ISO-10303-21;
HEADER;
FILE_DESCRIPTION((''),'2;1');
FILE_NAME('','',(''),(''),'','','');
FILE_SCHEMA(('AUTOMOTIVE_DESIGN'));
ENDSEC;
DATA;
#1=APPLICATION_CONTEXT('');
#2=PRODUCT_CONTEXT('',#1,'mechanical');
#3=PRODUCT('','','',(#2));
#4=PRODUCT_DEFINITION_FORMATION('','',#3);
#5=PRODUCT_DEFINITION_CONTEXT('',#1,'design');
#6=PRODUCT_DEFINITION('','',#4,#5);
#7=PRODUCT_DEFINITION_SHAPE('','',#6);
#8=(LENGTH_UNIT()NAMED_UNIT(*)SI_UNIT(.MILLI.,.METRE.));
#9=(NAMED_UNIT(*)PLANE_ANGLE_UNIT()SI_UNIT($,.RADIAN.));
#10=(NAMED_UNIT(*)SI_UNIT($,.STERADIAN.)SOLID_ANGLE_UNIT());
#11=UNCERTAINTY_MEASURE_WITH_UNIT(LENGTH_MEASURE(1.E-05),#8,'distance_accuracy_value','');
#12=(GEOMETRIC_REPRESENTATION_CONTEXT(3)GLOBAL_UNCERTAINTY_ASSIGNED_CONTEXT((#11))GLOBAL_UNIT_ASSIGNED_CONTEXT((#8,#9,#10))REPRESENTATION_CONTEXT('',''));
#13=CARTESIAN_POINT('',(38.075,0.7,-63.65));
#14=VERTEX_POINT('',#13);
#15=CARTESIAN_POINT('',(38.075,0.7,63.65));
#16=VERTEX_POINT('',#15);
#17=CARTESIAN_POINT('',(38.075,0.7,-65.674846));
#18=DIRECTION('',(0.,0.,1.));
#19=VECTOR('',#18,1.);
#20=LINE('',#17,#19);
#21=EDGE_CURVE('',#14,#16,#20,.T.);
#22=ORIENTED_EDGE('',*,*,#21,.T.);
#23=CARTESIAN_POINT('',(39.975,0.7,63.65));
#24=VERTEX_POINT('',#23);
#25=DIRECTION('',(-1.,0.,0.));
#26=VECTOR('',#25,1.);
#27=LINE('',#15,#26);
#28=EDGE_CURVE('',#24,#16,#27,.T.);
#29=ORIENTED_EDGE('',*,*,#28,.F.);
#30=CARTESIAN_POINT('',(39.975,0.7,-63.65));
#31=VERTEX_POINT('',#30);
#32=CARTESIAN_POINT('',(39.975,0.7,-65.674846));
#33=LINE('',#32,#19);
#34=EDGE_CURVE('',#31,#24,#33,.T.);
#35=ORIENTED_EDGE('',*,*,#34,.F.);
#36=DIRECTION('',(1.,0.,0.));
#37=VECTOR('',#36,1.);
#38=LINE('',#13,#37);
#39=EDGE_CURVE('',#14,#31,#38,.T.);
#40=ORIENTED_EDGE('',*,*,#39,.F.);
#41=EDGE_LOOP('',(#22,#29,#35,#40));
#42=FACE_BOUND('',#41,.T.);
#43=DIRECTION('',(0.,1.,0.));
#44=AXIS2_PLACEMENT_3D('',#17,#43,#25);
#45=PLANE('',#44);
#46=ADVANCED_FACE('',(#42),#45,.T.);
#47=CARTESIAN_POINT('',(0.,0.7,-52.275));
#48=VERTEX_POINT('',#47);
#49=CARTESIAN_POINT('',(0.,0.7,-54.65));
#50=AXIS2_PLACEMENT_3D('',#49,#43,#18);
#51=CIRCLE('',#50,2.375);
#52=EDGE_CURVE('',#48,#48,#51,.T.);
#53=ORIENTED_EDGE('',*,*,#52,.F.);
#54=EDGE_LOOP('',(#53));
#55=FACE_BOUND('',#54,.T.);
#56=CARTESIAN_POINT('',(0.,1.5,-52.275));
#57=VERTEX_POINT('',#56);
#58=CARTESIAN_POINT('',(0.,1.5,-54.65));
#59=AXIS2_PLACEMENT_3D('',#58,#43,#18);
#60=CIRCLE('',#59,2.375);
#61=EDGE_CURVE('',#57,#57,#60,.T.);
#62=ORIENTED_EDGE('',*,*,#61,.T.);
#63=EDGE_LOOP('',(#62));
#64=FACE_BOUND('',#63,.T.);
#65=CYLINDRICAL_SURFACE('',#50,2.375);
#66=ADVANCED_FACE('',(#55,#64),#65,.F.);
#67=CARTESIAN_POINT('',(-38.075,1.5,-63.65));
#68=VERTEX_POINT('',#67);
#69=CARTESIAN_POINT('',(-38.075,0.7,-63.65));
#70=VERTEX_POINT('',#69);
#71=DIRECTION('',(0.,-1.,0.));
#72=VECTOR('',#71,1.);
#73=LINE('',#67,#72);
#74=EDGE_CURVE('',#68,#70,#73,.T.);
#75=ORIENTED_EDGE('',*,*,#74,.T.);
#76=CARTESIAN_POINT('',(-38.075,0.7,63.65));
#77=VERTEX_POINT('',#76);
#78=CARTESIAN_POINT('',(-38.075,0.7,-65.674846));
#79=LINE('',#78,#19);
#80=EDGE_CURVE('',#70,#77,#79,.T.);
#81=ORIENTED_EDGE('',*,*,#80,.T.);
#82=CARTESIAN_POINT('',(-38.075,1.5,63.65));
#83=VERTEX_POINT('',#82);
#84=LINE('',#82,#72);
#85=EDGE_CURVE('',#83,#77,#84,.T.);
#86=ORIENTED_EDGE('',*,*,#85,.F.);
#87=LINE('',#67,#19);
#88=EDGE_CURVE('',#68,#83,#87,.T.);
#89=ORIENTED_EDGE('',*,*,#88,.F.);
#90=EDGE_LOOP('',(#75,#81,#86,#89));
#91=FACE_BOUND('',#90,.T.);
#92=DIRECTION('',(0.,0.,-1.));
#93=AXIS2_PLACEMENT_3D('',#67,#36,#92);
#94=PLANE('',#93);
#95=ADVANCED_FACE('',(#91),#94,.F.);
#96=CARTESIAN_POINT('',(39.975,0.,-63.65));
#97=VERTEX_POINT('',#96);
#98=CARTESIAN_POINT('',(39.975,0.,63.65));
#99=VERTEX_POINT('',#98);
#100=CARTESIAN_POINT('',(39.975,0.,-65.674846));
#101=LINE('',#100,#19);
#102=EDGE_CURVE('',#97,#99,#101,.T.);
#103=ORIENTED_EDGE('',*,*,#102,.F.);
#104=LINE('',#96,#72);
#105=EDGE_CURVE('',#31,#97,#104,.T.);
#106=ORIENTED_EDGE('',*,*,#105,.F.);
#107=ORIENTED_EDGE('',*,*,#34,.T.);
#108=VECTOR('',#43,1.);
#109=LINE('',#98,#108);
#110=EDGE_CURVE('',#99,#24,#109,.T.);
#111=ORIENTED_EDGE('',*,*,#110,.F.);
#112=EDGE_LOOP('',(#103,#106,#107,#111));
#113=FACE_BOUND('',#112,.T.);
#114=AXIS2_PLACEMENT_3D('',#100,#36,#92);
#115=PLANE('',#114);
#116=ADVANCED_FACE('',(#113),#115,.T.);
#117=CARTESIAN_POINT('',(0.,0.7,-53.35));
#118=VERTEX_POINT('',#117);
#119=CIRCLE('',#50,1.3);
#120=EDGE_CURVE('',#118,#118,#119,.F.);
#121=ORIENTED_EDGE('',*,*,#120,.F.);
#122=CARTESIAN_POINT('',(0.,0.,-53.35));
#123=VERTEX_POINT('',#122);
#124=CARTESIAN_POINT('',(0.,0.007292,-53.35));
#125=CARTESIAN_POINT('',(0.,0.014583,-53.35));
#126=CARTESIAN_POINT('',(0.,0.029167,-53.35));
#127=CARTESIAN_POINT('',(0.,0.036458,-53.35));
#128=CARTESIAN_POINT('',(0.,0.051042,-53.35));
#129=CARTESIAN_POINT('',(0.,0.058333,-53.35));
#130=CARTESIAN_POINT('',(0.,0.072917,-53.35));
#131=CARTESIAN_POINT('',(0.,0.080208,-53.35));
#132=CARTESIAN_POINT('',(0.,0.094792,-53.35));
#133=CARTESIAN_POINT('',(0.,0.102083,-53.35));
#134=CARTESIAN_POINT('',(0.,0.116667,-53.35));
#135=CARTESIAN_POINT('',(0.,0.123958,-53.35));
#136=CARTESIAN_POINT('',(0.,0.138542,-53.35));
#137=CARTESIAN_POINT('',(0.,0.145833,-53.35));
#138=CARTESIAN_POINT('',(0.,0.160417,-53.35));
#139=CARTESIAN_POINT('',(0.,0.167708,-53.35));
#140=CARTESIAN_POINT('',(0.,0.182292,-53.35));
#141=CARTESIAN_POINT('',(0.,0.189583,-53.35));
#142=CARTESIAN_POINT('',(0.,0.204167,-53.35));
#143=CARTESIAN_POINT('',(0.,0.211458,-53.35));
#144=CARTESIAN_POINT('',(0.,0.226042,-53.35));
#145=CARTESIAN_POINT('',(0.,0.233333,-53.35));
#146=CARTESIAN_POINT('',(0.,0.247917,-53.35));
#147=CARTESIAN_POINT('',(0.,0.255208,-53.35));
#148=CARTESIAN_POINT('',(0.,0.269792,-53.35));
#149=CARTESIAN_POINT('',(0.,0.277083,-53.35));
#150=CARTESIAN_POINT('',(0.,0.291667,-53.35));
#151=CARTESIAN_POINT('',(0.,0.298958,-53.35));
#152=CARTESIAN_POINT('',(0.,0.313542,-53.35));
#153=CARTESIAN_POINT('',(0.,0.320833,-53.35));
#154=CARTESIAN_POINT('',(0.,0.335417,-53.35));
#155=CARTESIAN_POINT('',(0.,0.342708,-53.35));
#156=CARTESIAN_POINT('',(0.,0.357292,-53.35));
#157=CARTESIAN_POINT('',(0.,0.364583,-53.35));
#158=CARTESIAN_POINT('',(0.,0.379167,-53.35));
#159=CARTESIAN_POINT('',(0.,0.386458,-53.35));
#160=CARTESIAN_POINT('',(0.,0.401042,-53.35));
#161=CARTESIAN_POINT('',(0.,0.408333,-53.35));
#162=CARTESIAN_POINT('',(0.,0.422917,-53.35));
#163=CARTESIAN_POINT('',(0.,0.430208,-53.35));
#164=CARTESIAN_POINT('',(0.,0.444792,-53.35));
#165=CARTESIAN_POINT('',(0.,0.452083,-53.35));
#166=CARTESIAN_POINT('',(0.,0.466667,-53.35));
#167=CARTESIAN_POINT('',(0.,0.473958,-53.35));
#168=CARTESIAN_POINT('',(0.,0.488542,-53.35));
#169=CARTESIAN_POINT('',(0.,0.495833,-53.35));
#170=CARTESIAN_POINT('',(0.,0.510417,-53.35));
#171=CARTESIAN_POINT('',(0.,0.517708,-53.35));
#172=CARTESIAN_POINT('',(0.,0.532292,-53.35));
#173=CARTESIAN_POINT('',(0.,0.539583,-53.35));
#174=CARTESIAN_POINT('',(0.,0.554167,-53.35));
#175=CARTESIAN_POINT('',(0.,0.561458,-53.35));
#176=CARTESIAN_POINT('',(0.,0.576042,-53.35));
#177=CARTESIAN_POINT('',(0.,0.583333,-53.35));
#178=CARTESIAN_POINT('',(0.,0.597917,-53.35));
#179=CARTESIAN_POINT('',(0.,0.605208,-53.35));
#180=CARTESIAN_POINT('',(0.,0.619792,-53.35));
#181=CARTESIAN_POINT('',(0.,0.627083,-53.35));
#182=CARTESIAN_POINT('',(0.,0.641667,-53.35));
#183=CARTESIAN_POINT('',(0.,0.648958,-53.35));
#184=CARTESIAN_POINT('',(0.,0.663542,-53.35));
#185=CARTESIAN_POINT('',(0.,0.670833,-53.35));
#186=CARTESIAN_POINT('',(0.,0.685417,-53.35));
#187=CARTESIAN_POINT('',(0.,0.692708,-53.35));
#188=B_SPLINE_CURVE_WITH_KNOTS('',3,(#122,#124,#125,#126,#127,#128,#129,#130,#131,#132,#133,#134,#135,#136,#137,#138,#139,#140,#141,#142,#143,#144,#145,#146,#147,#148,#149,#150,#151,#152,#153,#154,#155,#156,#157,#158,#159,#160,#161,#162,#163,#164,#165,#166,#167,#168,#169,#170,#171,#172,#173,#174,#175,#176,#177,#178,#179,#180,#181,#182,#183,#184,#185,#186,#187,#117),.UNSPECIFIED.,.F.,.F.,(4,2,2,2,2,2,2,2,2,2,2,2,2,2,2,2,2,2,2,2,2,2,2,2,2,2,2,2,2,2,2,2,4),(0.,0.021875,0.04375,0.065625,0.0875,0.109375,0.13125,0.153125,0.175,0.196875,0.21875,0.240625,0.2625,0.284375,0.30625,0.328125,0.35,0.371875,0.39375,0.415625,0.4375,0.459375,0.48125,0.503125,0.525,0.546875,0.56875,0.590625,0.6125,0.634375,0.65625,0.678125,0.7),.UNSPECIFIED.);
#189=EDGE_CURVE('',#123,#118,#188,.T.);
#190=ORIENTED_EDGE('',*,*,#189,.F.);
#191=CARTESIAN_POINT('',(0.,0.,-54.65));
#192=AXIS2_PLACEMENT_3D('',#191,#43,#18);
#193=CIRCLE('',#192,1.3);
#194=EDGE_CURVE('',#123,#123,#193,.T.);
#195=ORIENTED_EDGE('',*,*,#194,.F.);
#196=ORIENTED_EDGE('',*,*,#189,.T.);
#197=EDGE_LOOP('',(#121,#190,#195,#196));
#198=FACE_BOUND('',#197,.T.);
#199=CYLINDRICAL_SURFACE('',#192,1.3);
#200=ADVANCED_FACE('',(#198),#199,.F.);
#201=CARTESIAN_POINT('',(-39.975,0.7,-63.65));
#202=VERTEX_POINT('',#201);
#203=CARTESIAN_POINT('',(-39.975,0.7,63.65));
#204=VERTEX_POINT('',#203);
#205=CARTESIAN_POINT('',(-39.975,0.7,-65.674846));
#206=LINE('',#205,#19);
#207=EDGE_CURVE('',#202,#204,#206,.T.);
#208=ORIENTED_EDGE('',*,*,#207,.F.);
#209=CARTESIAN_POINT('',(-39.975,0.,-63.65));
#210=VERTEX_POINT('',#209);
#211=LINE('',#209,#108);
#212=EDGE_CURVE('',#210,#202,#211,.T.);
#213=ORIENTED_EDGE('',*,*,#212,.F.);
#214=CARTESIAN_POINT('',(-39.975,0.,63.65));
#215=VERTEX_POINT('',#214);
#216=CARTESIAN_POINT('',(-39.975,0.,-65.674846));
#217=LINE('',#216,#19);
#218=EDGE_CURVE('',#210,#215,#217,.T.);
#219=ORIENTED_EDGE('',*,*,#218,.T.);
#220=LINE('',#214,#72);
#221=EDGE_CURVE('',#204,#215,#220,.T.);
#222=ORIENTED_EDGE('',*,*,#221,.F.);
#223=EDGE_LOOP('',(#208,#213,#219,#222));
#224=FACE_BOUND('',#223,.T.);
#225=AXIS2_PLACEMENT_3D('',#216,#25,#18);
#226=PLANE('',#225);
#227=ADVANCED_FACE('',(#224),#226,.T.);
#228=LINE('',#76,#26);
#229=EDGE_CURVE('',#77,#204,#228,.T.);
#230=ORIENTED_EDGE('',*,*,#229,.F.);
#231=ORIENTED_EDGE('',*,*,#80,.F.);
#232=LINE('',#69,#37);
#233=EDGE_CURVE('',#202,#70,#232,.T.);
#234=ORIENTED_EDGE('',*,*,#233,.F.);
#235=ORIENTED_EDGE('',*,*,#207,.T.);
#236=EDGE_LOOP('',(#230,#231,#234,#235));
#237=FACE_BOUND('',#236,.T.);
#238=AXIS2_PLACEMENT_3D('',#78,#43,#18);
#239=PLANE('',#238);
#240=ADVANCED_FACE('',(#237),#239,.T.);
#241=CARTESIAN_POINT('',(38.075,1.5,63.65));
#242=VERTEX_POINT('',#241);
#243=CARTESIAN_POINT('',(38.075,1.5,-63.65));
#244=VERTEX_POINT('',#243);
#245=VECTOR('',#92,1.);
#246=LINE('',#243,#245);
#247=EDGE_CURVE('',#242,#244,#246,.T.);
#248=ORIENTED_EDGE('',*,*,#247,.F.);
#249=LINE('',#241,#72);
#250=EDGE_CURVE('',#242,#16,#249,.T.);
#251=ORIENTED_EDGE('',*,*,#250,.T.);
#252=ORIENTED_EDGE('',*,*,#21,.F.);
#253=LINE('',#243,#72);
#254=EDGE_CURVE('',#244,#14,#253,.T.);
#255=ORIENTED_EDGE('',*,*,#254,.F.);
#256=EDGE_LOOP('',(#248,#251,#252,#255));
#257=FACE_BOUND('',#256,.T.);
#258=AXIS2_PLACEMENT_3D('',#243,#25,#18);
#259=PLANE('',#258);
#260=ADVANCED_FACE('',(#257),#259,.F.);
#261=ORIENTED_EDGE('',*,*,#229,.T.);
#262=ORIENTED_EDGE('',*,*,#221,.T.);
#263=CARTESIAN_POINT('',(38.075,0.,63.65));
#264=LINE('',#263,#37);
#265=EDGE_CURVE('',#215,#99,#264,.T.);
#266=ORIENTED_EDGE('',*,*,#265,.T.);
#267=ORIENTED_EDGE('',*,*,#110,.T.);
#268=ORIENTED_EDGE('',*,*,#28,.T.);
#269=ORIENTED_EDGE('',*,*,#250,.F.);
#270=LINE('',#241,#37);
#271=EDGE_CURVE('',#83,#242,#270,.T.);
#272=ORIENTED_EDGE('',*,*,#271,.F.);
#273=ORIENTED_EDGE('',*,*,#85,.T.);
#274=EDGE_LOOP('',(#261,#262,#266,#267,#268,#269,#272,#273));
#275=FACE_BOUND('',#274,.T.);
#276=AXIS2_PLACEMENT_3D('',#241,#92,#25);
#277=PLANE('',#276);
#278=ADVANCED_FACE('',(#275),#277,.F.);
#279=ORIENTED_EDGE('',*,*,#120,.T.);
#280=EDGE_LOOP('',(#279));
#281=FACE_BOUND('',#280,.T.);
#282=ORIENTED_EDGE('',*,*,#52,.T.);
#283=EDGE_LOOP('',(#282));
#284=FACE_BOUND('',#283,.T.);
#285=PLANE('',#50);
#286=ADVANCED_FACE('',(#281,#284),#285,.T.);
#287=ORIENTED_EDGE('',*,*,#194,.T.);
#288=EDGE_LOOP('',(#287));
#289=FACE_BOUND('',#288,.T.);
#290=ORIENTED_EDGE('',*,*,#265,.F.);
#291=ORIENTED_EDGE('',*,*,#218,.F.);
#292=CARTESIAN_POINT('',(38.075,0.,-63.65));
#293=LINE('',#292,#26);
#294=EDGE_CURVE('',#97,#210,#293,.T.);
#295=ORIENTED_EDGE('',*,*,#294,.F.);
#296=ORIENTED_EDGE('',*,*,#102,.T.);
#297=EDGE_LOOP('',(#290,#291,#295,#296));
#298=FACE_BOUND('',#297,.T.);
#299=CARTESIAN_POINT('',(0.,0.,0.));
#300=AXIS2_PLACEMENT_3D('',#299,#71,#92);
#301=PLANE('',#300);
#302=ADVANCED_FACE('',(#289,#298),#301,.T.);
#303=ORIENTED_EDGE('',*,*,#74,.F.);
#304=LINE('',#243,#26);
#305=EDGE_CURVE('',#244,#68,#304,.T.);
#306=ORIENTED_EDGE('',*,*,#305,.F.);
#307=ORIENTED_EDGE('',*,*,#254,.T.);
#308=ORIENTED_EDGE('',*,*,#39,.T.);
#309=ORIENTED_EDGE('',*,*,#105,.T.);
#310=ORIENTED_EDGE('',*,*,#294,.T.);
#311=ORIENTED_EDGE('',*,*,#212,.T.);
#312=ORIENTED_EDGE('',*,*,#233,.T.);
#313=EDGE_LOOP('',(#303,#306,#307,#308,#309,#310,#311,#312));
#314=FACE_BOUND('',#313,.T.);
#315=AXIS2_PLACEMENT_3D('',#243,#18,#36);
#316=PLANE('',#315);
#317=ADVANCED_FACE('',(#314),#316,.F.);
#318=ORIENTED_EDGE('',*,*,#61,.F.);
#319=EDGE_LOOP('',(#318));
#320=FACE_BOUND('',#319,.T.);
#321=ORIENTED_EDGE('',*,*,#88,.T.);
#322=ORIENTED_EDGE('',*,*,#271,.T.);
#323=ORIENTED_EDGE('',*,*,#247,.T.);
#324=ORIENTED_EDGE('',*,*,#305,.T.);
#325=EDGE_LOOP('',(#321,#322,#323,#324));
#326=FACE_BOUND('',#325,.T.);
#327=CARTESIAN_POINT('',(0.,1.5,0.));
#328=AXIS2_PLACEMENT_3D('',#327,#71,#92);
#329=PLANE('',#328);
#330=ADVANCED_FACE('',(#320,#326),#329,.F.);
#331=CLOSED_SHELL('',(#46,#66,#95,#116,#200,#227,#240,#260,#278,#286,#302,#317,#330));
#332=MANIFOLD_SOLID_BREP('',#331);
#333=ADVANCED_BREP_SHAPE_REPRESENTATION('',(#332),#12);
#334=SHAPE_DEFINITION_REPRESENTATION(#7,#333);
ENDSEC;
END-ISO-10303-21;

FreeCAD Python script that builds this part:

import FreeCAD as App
import Part
import Sketcher
from FreeCAD import Vector
Q = App.Units.Quantity

doc = App.newDocument("Part")
params = doc.addObject("Spreadsheet::Sheet", "Params")
for row, (alias, value) in enumerate([
    ("sketch1_height", "127.3 mm"),
    ("sketch1_width", "76.15 mm"),
    ("pad1_length", "1.5 mm"),
    ("sketch2_width", "1.9 mm"),
    ("sketch2_height", "0.7 mm"),
    ("pad2_length", "127.3 mm"),
    ("sketch3_diameter", "2.6 mm"),
    ("sketch4_diameter", "4.75 mm"),
    ("pocket2_length", "0.8 mm"),
], start=1):
    params.set(f"A{row}", alias)
    params.set(f"B{row}", "=" + value)
    params.setAlias(f"B{row}", alias)

body = doc.addObject("PartDesign::Body", "Body")

# Sketch on XZ plane
sketch1 = body.newObject("Sketcher::SketchObject", "Sketch")
sketch1.AttachmentSupport = (doc.getObject("XZ_Plane"), [""])
sketch1.MapMode = "FlatFace"
sketch1.addGeometry(Part.LineSegment(Vector(-38, -64, 0), Vector(-38, 64, 0)), False)
sketch1.addGeometry(Part.LineSegment(Vector(-38, 64, 0), Vector(38, 64, 0)), False)
sketch1.addGeometry(Part.LineSegment(Vector(38, 64, 0), Vector(38, -64, 0)), False)
sketch1.addGeometry(Part.LineSegment(Vector(38, -64, 0), Vector(-38, -64, 0)), False)
sketch1.addConstraint(Sketcher.Constraint("Coincident", 0, 2, 1, 1))
sketch1.addConstraint(Sketcher.Constraint("Coincident", 1, 2, 2, 1))
sketch1.addConstraint(Sketcher.Constraint("Coincident", 2, 2, 3, 1))
sketch1.addConstraint(Sketcher.Constraint("Coincident", 3, 2, 0, 1))
sketch1.addConstraint(Sketcher.Constraint("Vertical", 0))
sketch1.addConstraint(Sketcher.Constraint("Horizontal", 1))
sketch1.addConstraint(Sketcher.Constraint("Vertical", 2))
sketch1.addConstraint(Sketcher.Constraint("Horizontal", 3))
sketch1.addConstraint(Sketcher.Constraint("Symmetric", 0, 2, 2, 2, -1, 1))
sketch1.addConstraint(Sketcher.Constraint("DistanceY", 0, 1, 0, 2, Q("127.3 mm")))
sketch1.addConstraint(Sketcher.Constraint("DistanceX", 1, 1, 1, 2, Q("76.15 mm")))
sketch1.setExpression("Constraints[9]", "Params.sketch1_height")
sketch1.setExpression("Constraints[10]", "Params.sketch1_width")
pad1 = body.newObject("PartDesign::Pad", "Pad")
pad1.Profile = sketch1
pad1.setExpression("Length", "Params.pad1_length")
pad1.Reversed = True

# Sketch on XY plane
sketch2 = body.newObject("Sketcher::SketchObject", "Sketch001")
sketch2.AttachmentSupport = (doc.getObject("XY_Plane"), [""])
sketch2.MapMode = "FlatFace"
sketch2.AttachmentOffset = App.Placement(Vector(0, 0, 63.65), App.Rotation())
sketch2.addGeometry(Part.LineSegment(Vector(-40, 0.7, 0), Vector(-40, 0, 0)), False)
sketch2.addGeometry(Part.LineSegment(Vector(-40, 0, 0), Vector(-38.1, 0, 0)), False)
sketch2.addGeometry(Part.LineSegment(Vector(-38.1, 0, 0), Vector(-38.1, 0.7, 0)), False)
sketch2.addGeometry(Part.LineSegment(Vector(-38.1, 0.7, 0), Vector(-40, 0.7, 0)), False)
sketch2.addGeometry(Part.LineSegment(Vector(38.1, 0.7, 0), Vector(38.1, 0, 0)), False)
sketch2.addGeometry(Part.LineSegment(Vector(38.1, 0, 0), Vector(40, 0, 0)), False)
sketch2.addGeometry(Part.LineSegment(Vector(40, 0, 0), Vector(40, 0.7, 0)), False)
sketch2.addGeometry(Part.LineSegment(Vector(40, 0.7, 0), Vector(38.1, 0.7, 0)), False)
sketch2.addConstraint(Sketcher.Constraint("Coincident", 0, 2, 1, 1))
sketch2.addConstraint(Sketcher.Constraint("Coincident", 1, 2, 2, 1))
sketch2.addConstraint(Sketcher.Constraint("Coincident", 2, 2, 3, 1))
sketch2.addConstraint(Sketcher.Constraint("Coincident", 3, 2, 0, 1))
sketch2.addConstraint(Sketcher.Constraint("Coincident", 4, 2, 5, 1))
sketch2.addConstraint(Sketcher.Constraint("Coincident", 5, 2, 6, 1))
sketch2.addConstraint(Sketcher.Constraint("Coincident", 6, 2, 7, 1))
sketch2.addConstraint(Sketcher.Constraint("Coincident", 7, 2, 4, 1))
sketch2.addConstraint(Sketcher.Constraint("Vertical", 0))
sketch2.addConstraint(Sketcher.Constraint("Horizontal", 1))
sketch2.addConstraint(Sketcher.Constraint("Vertical", 2))
sketch2.addConstraint(Sketcher.Constraint("Horizontal", 3))
sketch2.addConstraint(Sketcher.Constraint("Vertical", 4))
sketch2.addConstraint(Sketcher.Constraint("Horizontal", 5))
sketch2.addConstraint(Sketcher.Constraint("Vertical", 6))
sketch2.addConstraint(Sketcher.Constraint("Horizontal", 7))
sketch2.addConstraint(Sketcher.Constraint("Symmetric", 1, 2, 4, 2, -1, 1))
sketch2.addConstraint(Sketcher.Constraint("Symmetric", 0, 2, 5, 2, -2))
sketch2.addConstraint(Sketcher.Constraint("Horizontal", 3, 2, 6, 2))
sketch2.addConstraint(Sketcher.Constraint("DistanceX", 1, 1, 1, 2, Q("1.9 mm")))
sketch2.addConstraint(Sketcher.Constraint("DistanceY", 0, 2, 0, 1, Q("0.7 mm")))
sketch2.addConstraint(Sketcher.Constraint("DistanceX", 1, 2, 4, 2, Q("76.15 mm")))
sketch2.setExpression("Constraints[19]", "Params.sketch2_width")
sketch2.setExpression("Constraints[20]", "Params.sketch2_height")
pad2 = body.newObject("PartDesign::Pad", "Pad001")
pad2.Profile = sketch2
pad2.setExpression("Length", "Params.pad2_length")
pad2.Reversed = True

# Sketch on XZ plane
sketch3 = body.newObject("Sketcher::SketchObject", "Sketch002")
sketch3.AttachmentSupport = (doc.getObject("XZ_Plane"), [""])
sketch3.MapMode = "FlatFace"
sketch3.AttachmentOffset = App.Placement(Vector(0, 0, -1.5), App.Rotation())
sketch3.addGeometry(Part.Circle(Vector(0, -54.6, 0), Vector(0, 0, 1), 1.3), False)
sketch3.addConstraint(Sketcher.Constraint("PointOnObject", 0, 3, -2))
sketch3.addConstraint(Sketcher.Constraint("Diameter", 0, Q("2.6 mm")))
sketch3.addConstraint(Sketcher.Constraint("DistanceY", 0, 3, -1, 1, Q("54.65 mm")))
sketch3.setExpression("Constraints[1]", "Params.sketch3_diameter")
pocket1 = body.newObject("PartDesign::Pocket", "Pocket")
pocket1.Profile = sketch3
pocket1.Type = "ThroughAll"
pocket1.Reversed = True

# Sketch on XZ plane
sketch4 = body.newObject("Sketcher::SketchObject", "Sketch003")
sketch4.AttachmentSupport = (doc.getObject("XZ_Plane"), [""])
sketch4.MapMode = "FlatFace"
sketch4.AttachmentOffset = App.Placement(Vector(0, 0, -1.5), App.Rotation())
sketch4.addGeometry(Part.Circle(Vector(0, -54.6, 0), Vector(0, 0, 1), 2.4), False)
sketch4.addConstraint(Sketcher.Constraint("PointOnObject", 0, 3, -2))
sketch4.addConstraint(Sketcher.Constraint("Diameter", 0, Q("4.75 mm")))
sketch4.addConstraint(Sketcher.Constraint("DistanceY", 0, 3, -1, 1, Q("54.65 mm")))
sketch4.setExpression("Constraints[1]", "Params.sketch4_diameter")
pocket2 = body.newObject("PartDesign::Pocket", "Pocket001")
pocket2.Profile = sketch4
pocket2.setExpression("Length", "Params.pocket2_length")
pocket2.Reversed = True

doc.recompute()
